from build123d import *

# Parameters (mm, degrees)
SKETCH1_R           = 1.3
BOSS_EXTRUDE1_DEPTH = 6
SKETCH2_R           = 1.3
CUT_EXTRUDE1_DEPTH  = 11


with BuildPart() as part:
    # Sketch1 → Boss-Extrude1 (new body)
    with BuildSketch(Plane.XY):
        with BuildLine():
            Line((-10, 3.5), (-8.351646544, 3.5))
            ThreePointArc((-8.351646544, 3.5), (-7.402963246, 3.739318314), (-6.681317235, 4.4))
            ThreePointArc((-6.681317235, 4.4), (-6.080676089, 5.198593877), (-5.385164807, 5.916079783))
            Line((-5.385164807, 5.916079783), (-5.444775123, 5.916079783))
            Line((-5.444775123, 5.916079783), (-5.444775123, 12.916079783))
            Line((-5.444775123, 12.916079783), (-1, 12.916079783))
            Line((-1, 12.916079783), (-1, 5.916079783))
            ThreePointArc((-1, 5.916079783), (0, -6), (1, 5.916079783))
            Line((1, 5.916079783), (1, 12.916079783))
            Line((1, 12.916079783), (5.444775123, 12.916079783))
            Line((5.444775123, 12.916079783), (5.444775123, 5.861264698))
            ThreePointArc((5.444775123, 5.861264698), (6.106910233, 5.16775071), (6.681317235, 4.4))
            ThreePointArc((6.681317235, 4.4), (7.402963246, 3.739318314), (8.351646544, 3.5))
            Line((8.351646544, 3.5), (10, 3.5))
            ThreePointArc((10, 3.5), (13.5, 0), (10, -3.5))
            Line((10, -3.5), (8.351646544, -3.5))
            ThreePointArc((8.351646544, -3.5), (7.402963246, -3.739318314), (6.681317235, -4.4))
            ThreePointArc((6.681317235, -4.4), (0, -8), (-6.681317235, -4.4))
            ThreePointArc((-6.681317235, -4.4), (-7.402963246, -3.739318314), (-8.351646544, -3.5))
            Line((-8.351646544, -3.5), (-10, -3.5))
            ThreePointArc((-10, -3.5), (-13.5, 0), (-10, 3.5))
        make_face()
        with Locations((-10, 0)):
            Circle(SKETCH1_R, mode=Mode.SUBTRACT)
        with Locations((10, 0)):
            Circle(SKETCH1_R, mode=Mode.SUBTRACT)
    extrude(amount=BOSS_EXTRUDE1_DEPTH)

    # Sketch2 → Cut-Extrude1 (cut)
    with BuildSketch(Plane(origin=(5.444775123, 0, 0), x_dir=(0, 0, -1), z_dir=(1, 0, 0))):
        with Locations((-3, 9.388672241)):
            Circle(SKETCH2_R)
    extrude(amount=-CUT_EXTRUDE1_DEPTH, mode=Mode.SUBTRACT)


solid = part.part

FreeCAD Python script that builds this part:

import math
import FreeCAD as App
import Part
import Sketcher

doc = App.newDocument("Part")
body = doc.addObject("PartDesign::Body", "Body")

# Sketch on XY plane
sketch1 = doc.addObject("Sketcher::SketchObject", "Sketch")
body.addObject(sketch1)
sketch1.AttachmentSupport = (doc.XY_Plane, [""])
sketch1.MapMode = "FlatFace"
sketch1.addGeometry([
    Part.LineSegment(App.Vector(-8.35, 3.5, 0), App.Vector(-10, 3.5, 0)),  # 0
    Part.ArcOfCircle(Part.Circle(App.Vector(-10, 0, 0), App.Vector(0, 0, 1), 3.5), math.radians(90), math.radians(270)),  # 1
    Part.LineSegment(App.Vector(-10, -3.5, 0), App.Vector(-8.35, -3.5, 0)),  # 2
    Part.ArcOfCircle(Part.Circle(App.Vector(-8.35, -5.5, 0), App.Vector(0, 0, 1), 2), math.radians(33), math.radians(90)),  # 3
    Part.ArcOfCircle(Part.Circle(App.Vector(0, 0, 0), App.Vector(0, 0, 1), 8), math.radians(-147), math.radians(-33)),  # 4
    Part.ArcOfCircle(Part.Circle(App.Vector(8.35, -5.5, 0), App.Vector(0, 0, 1), 2), math.radians(90), math.radians(147)),  # 5
    Part.LineSegment(App.Vector(8.35, -3.5, 0), App.Vector(10, -3.5, 0)),  # 6
    Part.ArcOfCircle(Part.Circle(App.Vector(10, 0, 0), App.Vector(0, 0, 1), 3.5), math.radians(-90), math.radians(90)),  # 7
    Part.LineSegment(App.Vector(10, 3.5, 0), App.Vector(8.35, 3.5, 0)),  # 8
    Part.ArcOfCircle(Part.Circle(App.Vector(8.35, 5.5, 0), App.Vector(0, 0, 1), 2), math.radians(-147), math.radians(-90)),  # 9
    Part.ArcOfCircle(Part.Circle(App.Vector(0, 0, 0), App.Vector(0, 0, 1), 8), math.radians(33.37), math.radians(47.11)),  # 10
    Part.LineSegment(App.Vector(5.44, 5.86, 0), App.Vector(5.44, 12.92, 0)),  # 11
    Part.LineSegment(App.Vector(5.44, 12.92, 0), App.Vector(1, 12.92, 0)),  # 12
    Part.LineSegment(App.Vector(1, 12.92, 0), App.Vector(1, 5.92, 0)),  # 13
    Part.ArcOfCircle(Part.Circle(App.Vector(0, 0, 0), App.Vector(0, 0, 1), 6), math.radians(100), math.radians(440)),  # 14
    Part.LineSegment(App.Vector(-1, 5.92, 0), App.Vector(-1, 12.92, 0)),  # 15
    Part.LineSegment(App.Vector(-1, 12.92, 0), App.Vector(-5.44, 12.92, 0)),  # 16
    Part.LineSegment(App.Vector(-5.44, 12.92, 0), App.Vector(-5.44, 5.92, 0)),  # 17
    Part.LineSegment(App.Vector(-5.44, 5.92, 0), App.Vector(-5.39, 5.92, 0)),  # 18
    Part.ArcOfCircle(Part.Circle(App.Vector(0, 0, 0), App.Vector(0, 0, 1), 8), math.radians(132.31), math.radians(146.63)),  # 19
    Part.ArcOfCircle(Part.Circle(App.Vector(-8.35, 5.5, 0), App.Vector(0, 0, 1), 2), math.radians(-90), math.radians(-33)),  # 20
    Part.Circle(App.Vector(10, 0, 0), App.Vector(0, 0, 1), 1.3),  # 21
    Part.Circle(App.Vector(-10, 0, 0), App.Vector(0, 0, 1), 1.3),  # 22
], False)
sketch1.addConstraint([
    Sketcher.Constraint("Tangent", 0, 2, 1, 1),
    Sketcher.Constraint("Tangent", 1, 2, 2, 1),
    Sketcher.Constraint("Tangent", 2, 2, 3, 2),
    Sketcher.Constraint("Tangent", 3, 1, 4, 1),
    Sketcher.Constraint("Tangent", 4, 2, 5, 2),
    Sketcher.Constraint("Tangent", 5, 1, 6, 1),
    Sketcher.Constraint("Tangent", 6, 2, 7, 1),
    Sketcher.Constraint("Tangent", 7, 2, 8, 1),
    Sketcher.Constraint("Tangent", 8, 2, 9, 2),
    Sketcher.Constraint("Tangent", 9, 1, 10, 1),
    Sketcher.Constraint("Coincident", 10, 2, 11, 1),
    Sketcher.Constraint("Coincident", 11, 2, 12, 1),
    Sketcher.Constraint("Coincident", 12, 2, 13, 1),
    Sketcher.Constraint("Coincident", 13, 2, 14, 2),
    Sketcher.Constraint("Coincident", 14, 1, 15, 1),
    Sketcher.Constraint("Coincident", 15, 2, 16, 1),
    Sketcher.Constraint("Coincident", 16, 2, 17, 1),
    Sketcher.Constraint("Coincident", 17, 2, 18, 1),
    Sketcher.Constraint("Coincident", 18, 2, 19, 1),
    Sketcher.Constraint("Tangent", 19, 2, 20, 2),
    Sketcher.Constraint("Tangent", 20, 1, 0, 1),
    Sketcher.Constraint("Horizontal", 0),
    Sketcher.Constraint("Horizontal", 2),
    Sketcher.Constraint("Horizontal", 6),
    Sketcher.Constraint("Horizontal", 8),
    Sketcher.Constraint("Vertical", 11),
    Sketcher.Constraint("Horizontal", 12),
    Sketcher.Constraint("Vertical", 13),
    Sketcher.Constraint("Vertical", 15),
    Sketcher.Constraint("Horizontal", 16),
    Sketcher.Constraint("Vertical", 17),
    Sketcher.Constraint("Horizontal", 18),
    Sketcher.Constraint("Coincident", 4, 3, -1, 1),
    Sketcher.Constraint("Coincident", 10, 3, -1, 1),
    Sketcher.Constraint("Coincident", 14, 3, -1, 1),
    Sketcher.Constraint("Coincident", 19, 3, -1, 1),
    Sketcher.Constraint("Coincident", 21, 3, 7, 3),
    Sketcher.Constraint("Coincident", 22, 3, 1, 3),
    Sketcher.Constraint("Equal", 3, 5),
    Sketcher.Constraint("Equal", 1, 7),
    Sketcher.Constraint("Equal", 5, 9),
    Sketcher.Constraint("Equal", 4, 10),
    Sketcher.Constraint("Equal", 10, 19),
    Sketcher.Constraint("Equal", 9, 20),
    Sketcher.Constraint("Equal", 21, 22),
    Sketcher.Constraint("Symmetric", 1, 3, 7, 3, -1, 1),
    Sketcher.Constraint("Symmetric", 12, 2, 15, 2, -2),
    Sketcher.Constraint("PointOnObject", 1, 3, -1),
    Sketcher.Constraint("Horizontal", 14, 1, 17, 2),
    Sketcher.Constraint("Equal", 12, 16),
    Sketcher.Constraint("Radius", 3, 2.0),
    Sketcher.Constraint("Radius", 4, 8.0),
    Sketcher.Constraint("Radius", 14, 6.0),
    Sketcher.Constraint("Diameter", 21, 2.6),
    Sketcher.Constraint("Radius", 1, 3.5),
    Sketcher.Constraint("DistanceY", 13, 2, 13, 1, 7.0),
    Sketcher.Constraint("DistanceX", 1, 3, -1, 1, 10.0),
    Sketcher.Constraint("DistanceX", -1, 1, 12, 2, 1.0),
    Sketcher.Constraint("DistanceX", 18, 1, 18, 2, 0.05961),
])
pad1 = doc.addObject("PartDesign::Pad", "Pad")
body.addObject(pad1)
pad1.Profile = sketch1
pad1.Length = 6

# Sketch on YZ plane
sketch2 = doc.addObject("Sketcher::SketchObject", "Sketch001")
body.addObject(sketch2)
sketch2.AttachmentSupport = (doc.YZ_Plane, [""])
sketch2.MapMode = "FlatFace"
sketch2.AttachmentOffset = App.Placement(App.Vector(0, 0, 5.444775), App.Rotation())
sketch2.addGeometry(Part.Circle(App.Vector(9.4, 3, 0), App.Vector(0, 0, 1), 1.3), False)
sketch2.addConstraint([
    Sketcher.Constraint("Diameter", 0, 2.6),
    Sketcher.Constraint("DistanceY", -1, 1, 0, 3, 3.0),
    Sketcher.Constraint("DistanceX", -1, 1, 0, 3, 9.388672),
])
pocket1 = doc.addObject("PartDesign::Pocket", "Pocket")
body.addObject(pocket1)
pocket1.Profile = sketch2
pocket1.Length = 11

doc.recompute()
